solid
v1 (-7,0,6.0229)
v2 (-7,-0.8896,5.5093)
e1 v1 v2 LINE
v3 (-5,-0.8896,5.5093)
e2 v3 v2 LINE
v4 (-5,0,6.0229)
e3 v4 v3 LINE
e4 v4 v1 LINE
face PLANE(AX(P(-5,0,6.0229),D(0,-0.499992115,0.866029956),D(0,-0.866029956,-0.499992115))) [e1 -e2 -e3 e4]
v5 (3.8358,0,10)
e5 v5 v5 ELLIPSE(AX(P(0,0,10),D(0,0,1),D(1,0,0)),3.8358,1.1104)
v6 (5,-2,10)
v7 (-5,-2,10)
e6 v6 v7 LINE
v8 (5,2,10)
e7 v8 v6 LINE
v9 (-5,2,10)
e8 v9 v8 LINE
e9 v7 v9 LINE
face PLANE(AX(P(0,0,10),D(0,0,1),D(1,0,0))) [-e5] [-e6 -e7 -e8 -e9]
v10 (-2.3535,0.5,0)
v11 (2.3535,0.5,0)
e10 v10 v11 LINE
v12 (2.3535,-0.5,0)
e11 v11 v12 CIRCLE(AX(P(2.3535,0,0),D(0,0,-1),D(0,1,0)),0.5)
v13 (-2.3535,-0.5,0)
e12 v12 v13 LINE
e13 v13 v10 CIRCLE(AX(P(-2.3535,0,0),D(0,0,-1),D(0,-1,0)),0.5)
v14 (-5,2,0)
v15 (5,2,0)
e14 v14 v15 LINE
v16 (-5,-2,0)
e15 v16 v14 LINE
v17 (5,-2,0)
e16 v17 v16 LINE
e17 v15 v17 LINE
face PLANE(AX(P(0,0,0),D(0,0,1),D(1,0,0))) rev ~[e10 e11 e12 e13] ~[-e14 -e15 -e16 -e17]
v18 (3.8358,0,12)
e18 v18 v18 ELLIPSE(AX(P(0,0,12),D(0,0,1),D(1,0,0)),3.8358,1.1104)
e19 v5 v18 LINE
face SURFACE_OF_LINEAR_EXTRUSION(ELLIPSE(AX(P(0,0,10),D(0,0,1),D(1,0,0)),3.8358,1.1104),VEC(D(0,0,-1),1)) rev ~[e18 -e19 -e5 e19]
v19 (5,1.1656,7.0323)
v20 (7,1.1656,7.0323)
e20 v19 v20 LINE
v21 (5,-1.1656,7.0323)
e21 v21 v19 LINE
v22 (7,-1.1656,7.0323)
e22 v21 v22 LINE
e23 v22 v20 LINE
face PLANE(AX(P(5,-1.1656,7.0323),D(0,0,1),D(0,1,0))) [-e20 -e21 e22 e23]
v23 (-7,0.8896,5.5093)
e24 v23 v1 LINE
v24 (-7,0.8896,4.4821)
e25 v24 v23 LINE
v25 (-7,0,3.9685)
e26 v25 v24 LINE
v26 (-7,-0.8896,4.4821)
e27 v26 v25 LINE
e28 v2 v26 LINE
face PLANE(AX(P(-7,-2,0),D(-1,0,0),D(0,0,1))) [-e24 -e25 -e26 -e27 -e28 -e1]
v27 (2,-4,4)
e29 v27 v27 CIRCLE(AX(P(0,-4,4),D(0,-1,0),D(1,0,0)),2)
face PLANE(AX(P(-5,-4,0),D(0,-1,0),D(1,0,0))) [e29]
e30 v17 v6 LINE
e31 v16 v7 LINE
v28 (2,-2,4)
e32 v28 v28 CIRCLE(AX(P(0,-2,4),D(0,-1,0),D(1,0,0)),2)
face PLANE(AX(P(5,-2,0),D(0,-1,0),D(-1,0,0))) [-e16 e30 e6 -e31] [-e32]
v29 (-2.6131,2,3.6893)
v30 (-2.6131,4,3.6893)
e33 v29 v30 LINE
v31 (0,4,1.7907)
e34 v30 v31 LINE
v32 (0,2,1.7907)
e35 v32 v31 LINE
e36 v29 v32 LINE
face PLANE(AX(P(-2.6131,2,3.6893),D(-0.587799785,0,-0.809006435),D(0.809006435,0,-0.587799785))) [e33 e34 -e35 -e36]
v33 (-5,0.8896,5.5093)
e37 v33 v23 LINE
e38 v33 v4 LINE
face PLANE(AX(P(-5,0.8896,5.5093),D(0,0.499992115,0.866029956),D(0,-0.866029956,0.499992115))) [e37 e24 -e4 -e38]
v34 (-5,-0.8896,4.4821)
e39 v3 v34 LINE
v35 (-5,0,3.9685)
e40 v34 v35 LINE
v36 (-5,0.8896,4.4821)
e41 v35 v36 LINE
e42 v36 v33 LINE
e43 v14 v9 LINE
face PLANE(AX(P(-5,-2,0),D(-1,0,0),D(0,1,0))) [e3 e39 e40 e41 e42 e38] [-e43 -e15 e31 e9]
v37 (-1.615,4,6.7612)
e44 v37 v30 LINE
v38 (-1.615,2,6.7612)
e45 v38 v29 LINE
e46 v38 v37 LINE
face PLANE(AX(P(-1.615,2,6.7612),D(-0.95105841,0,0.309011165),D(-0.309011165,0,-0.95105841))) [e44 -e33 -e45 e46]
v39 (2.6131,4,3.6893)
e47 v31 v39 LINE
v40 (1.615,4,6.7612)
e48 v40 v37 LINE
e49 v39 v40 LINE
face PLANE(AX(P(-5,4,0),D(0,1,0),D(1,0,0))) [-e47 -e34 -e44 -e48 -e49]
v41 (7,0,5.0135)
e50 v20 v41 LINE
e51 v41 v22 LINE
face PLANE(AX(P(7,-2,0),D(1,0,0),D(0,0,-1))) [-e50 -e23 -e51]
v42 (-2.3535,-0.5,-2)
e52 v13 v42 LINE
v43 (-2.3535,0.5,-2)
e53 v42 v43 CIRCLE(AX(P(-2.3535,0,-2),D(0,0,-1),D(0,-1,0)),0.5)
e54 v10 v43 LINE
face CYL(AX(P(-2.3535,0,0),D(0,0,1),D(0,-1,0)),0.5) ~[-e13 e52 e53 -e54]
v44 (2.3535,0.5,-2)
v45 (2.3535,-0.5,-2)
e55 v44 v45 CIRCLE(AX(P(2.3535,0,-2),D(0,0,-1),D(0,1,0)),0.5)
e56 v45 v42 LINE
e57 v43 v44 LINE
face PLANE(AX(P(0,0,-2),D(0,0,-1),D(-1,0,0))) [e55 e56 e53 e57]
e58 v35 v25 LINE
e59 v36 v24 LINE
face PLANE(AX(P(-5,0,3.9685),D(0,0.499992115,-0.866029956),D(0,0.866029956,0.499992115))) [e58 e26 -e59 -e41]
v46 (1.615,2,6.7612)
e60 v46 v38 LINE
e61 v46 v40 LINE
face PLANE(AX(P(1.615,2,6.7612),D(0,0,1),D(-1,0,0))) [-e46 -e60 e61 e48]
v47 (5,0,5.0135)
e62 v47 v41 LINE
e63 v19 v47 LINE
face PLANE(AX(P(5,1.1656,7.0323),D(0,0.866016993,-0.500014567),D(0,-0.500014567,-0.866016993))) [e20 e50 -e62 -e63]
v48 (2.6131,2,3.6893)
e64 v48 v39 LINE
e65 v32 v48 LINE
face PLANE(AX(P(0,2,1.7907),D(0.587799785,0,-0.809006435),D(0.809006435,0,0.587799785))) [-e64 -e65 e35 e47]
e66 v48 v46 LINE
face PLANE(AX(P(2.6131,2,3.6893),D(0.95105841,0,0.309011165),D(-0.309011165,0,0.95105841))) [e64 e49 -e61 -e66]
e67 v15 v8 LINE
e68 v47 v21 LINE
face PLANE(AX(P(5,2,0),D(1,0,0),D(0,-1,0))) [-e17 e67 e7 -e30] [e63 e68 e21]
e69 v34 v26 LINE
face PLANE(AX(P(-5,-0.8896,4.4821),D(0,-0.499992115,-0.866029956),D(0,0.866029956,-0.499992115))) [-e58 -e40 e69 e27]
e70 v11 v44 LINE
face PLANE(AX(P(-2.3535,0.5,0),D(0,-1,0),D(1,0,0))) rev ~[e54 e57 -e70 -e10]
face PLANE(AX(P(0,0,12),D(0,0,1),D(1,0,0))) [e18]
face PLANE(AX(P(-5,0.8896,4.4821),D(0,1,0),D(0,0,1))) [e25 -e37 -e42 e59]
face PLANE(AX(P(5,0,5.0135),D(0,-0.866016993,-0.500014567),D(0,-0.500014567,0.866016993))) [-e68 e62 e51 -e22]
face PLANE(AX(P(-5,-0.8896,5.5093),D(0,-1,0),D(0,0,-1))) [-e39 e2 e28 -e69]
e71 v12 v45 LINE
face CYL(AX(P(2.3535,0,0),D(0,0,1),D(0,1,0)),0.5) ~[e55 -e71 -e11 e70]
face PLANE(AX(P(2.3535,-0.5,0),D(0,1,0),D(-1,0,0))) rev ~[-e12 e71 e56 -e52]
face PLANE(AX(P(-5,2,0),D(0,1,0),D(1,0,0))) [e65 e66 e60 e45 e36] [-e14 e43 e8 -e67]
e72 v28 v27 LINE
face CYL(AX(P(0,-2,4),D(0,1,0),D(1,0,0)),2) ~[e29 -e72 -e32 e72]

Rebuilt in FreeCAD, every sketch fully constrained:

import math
import FreeCAD as App
import Part
import Sketcher

V = App.Vector
Q = App.Units.Quantity

doc = App.newDocument("Part")
params = doc.addObject("Spreadsheet::Sheet", "Params")
for row, (alias, value) in enumerate([
    ("sketch1_width", "10 mm"),
    ("sketch1_height", "4 mm"),
    ("pad1_length", "10 mm"),
    ("sketch2_diameter", "4 mm"),
    ("pad2_length", "2 mm"),
    ("pad3_length", "2 mm"),
    ("sketch4_width", "3.23 mm"),
    ("pad4_length", "2 mm"),
    ("pad5_length", "2 mm"),
    ("sketch6_radius", "0.5 mm"),
    ("pad6_length", "2 mm"),
    ("pad7_length", "2 mm"),
], start=1):
    params.set(f"A{row}", alias)
    params.set(f"B{row}", "=" + value)
    params.setAlias(f"B{row}", alias)

body = doc.addObject("PartDesign::Body", "Body")

# Sketch on XY plane
sketch1 = body.newObject("Sketcher::SketchObject", "Sketch")
sketch1.AttachmentSupport = (doc.getObject("XY_Plane"), [""])
sketch1.MapMode = "FlatFace"
sketch1.addGeometry(Part.LineSegment(V(5, 2, 0), V(-5, 2, 0)), False)
sketch1.addGeometry(Part.LineSegment(V(-5, 2, 0), V(-5, -2, 0)), False)
sketch1.addGeometry(Part.LineSegment(V(-5, -2, 0), V(5, -2, 0)), False)
sketch1.addGeometry(Part.LineSegment(V(5, -2, 0), V(5, 2, 0)), False)
sketch1.addConstraint(Sketcher.Constraint("Coincident", 0, 2, 1, 1))
sketch1.addConstraint(Sketcher.Constraint("Coincident", 1, 2, 2, 1))
sketch1.addConstraint(Sketcher.Constraint("Coincident", 2, 2, 3, 1))
sketch1.addConstraint(Sketcher.Constraint("Coincident", 3, 2, 0, 1))
sketch1.addConstraint(Sketcher.Constraint("Horizontal", 0))
sketch1.addConstraint(Sketcher.Constraint("Vertical", 1))
sketch1.addConstraint(Sketcher.Constraint("Horizontal", 2))
sketch1.addConstraint(Sketcher.Constraint("Vertical", 3))
sketch1.addConstraint(Sketcher.Constraint("Symmetric", 0, 2, 2, 2, -1, 1))
sketch1.addConstraint(Sketcher.Constraint("DistanceX", 0, 2, 0, 1, Q("10 mm")))
sketch1.addConstraint(Sketcher.Constraint("DistanceY", 1, 2, 1, 1, Q("4 mm")))
sketch1.setExpression("Constraints[9]", "Params.sketch1_width")
sketch1.setExpression("Constraints[10]", "Params.sketch1_height")
pad1 = body.newObject("PartDesign::Pad", "Pad")
pad1.Profile = sketch1
pad1.setExpression("Length", "Params.pad1_length")

# Sketch on XZ plane
sketch2 = body.newObject("Sketcher::SketchObject", "Sketch001")
sketch2.AttachmentSupport = (doc.getObject("XZ_Plane"), [""])
sketch2.MapMode = "FlatFace"
sketch2.AttachmentOffset = App.Placement(V(0, 0, 2), App.Rotation())
sketch2.addGeometry(Part.Circle(V(0, 4, 0), V(0, 0, 1), 2), False)
sketch2.addConstraint(Sketcher.Constraint("PointOnObject", 0, 3, -2))
sketch2.addConstraint(Sketcher.Constraint("Diameter", 0, Q("4 mm")))
sketch2.addConstraint(Sketcher.Constraint("DistanceY", -1, 1, 0, 3, Q("4 mm")))
sketch2.setExpression("Constraints[1]", "Params.sketch2_diameter")
pad2 = body.newObject("PartDesign::Pad", "Pad001")
pad2.Profile = sketch2
pad2.setExpression("Length", "Params.pad2_length")

# Sketch on YZ plane
sketch3 = body.newObject("Sketcher::SketchObject", "Sketch002")
sketch3.AttachmentSupport = (doc.getObject("YZ_Plane"), [""])
sketch3.MapMode = "FlatFace"
sketch3.AttachmentOffset = App.Placement(V(0, 0, 5), App.Rotation())
sketch3.addGeometry(Part.LineSegment(V(-1.2, 7, 0), V(0, 5, 0)), False)
sketch3.addGeometry(Part.LineSegment(V(0, 5, 0), V(1.2, 7, 0)), False)
sketch3.addGeometry(Part.LineSegment(V(1.2, 7, 0), V(-1.2, 7, 0)), False)
sketch3.addConstraint(Sketcher.Constraint("Coincident", 0, 2, 1, 1))
sketch3.addConstraint(Sketcher.Constraint("Coincident", 1, 2, 2, 1))
sketch3.addConstraint(Sketcher.Constraint("Coincident", 2, 2, 0, 1))
sketch3.addConstraint(Sketcher.Constraint("Horizontal", 2))
sketch3.addConstraint(Sketcher.Constraint("PointOnObject", 0, 2, -2))
sketch3.addConstraint(Sketcher.Constraint("Equal", 0, 1))
sketch3.addConstraint(Sketcher.Constraint("Angle", 0, Q("-59.999 deg")))
sketch3.addConstraint(Sketcher.Constraint("DistanceX", 2, 2, 2, 1, Q("2.3312 mm")))
sketch3.addConstraint(Sketcher.Constraint("DistanceY", -1, 1, 0, 2, Q("5.0135 mm")))
pad3 = body.newObject("PartDesign::Pad", "Pad002")
pad3.Profile = sketch3
pad3.setExpression("Length", "Params.pad3_length")

# Sketch on XZ plane
sketch4 = body.newObject("Sketcher::SketchObject", "Sketch003")
sketch4.AttachmentSupport = (doc.getObject("XZ_Plane"), [""])
sketch4.MapMode = "FlatFace"
sketch4.AttachmentOffset = App.Placement(V(0, 0, -2), App.Rotation())
sketch4.addGeometry(Part.LineSegment(V(2.6, 3.7, 0), V(0, 1.8, 0)), False)
sketch4.addGeometry(Part.LineSegment(V(0, 1.8, 0), V(-2.6, 3.7, 0)), False)
sketch4.addGeometry(Part.LineSegment(V(-2.6, 3.7, 0), V(-1.6, 6.8, 0)), False)
sketch4.addGeometry(Part.LineSegment(V(-1.6, 6.8, 0), V(1.6, 6.8, 0)), False)
sketch4.addGeometry(Part.LineSegment(V(1.6, 6.8, 0), V(2.6, 3.7, 0)), False)
sketch4.addConstraint(Sketcher.Constraint("Coincident", 0, 2, 1, 1))
sketch4.addConstraint(Sketcher.Constraint("Coincident", 1, 2, 2, 1))
sketch4.addConstraint(Sketcher.Constraint("Coincident", 2, 2, 3, 1))
sketch4.addConstraint(Sketcher.Constraint("Coincident", 3, 2, 4, 1))
sketch4.addConstraint(Sketcher.Constraint("Coincident", 4, 2, 0, 1))
sketch4.addConstraint(Sketcher.Constraint("Horizontal", 3))
sketch4.addConstraint(Sketcher.Constraint("Symmetric", 1, 2, 4, 2, -2))
sketch4.addConstraint(Sketcher.Constraint("PointOnObject", 0, 2, -2))
sketch4.addConstraint(Sketcher.Constraint("Equal", 1, 2))
sketch4.addConstraint(Sketcher.Constraint("Equal", 2, 4))
sketch4.addConstraint(Sketcher.Constraint("Angle", 0, Q("-143.999 deg")))
sketch4.addConstraint(Sketcher.Constraint("Angle", 2, Q("72.0004 deg")))
sketch4.addConstraint(Sketcher.Constraint("DistanceX", 3, 1, 3, 2, Q("3.23 mm")))
sketch4.addConstraint(Sketcher.Constraint("DistanceY", -1, 1, 0, 2, Q("1.7907 mm")))
sketch4.setExpression("Constraints[12]", "Params.sketch4_width")
pad4 = body.newObject("PartDesign::Pad", "Pad003")
pad4.Profile = sketch4
pad4.setExpression("Length", "Params.pad4_length")
pad4.Reversed = True

# Sketch on YZ plane
sketch5 = body.newObject("Sketcher::SketchObject", "Sketch004")
sketch5.AttachmentSupport = (doc.getObject("YZ_Plane"), [""])
sketch5.MapMode = "FlatFace"
sketch5.AttachmentOffset = App.Placement(V(0, 0, -5), App.Rotation())
sketch5.addGeometry(Part.LineSegment(V(-0.9, 5.5, 0), V(0, 6, 0)), False)
sketch5.addGeometry(Part.LineSegment(V(0, 6, 0), V(0.9, 5.5, 0)), False)
sketch5.addGeometry(Part.LineSegment(V(0.9, 5.5, 0), V(0.9, 4.5, 0)), False)
sketch5.addGeometry(Part.LineSegment(V(0.9, 4.5, 0), V(0, 4, 0)), False)
sketch5.addGeometry(Part.LineSegment(V(0, 4, 0), V(-0.9, 4.5, 0)), False)
sketch5.addGeometry(Part.LineSegment(V(-0.9, 4.5, 0), V(-0.9, 5.5, 0)), False)
sketch5.addConstraint(Sketcher.Constraint("Coincident", 0, 2, 1, 1))
sketch5.addConstraint(Sketcher.Constraint("Coincident", 1, 2, 2, 1))
sketch5.addConstraint(Sketcher.Constraint("Coincident", 2, 2, 3, 1))
sketch5.addConstraint(Sketcher.Constraint("Coincident", 3, 2, 4, 1))
sketch5.addConstraint(Sketcher.Constraint("Coincident", 4, 2, 5, 1))
sketch5.addConstraint(Sketcher.Constraint("Coincident", 5, 2, 0, 1))
sketch5.addConstraint(Sketcher.Constraint("Vertical", 2))
sketch5.addConstraint(Sketcher.Constraint("Vertical", 5))
sketch5.addConstraint(Sketcher.Constraint("Symmetric", 2, 2, 4, 2, -2))
sketch5.addConstraint(Sketcher.Constraint("PointOnObject", 0, 2, -2))
sketch5.addConstraint(Sketcher.Constraint("PointOnObject", 3, 2, -2))
sketch5.addConstraint(Sketcher.Constraint("Parallel", 0, 3))
sketch5.addConstraint(Sketcher.Constraint("Parallel", 1, 4))
sketch5.addConstraint(Sketcher.Constraint("Angle", 0, Q("29.9995 deg")))
sketch5.addConstraint(Sketcher.Constraint("DistanceY", 2, 2, 2, 1, Q("1.0272 mm")))
sketch5.addConstraint(Sketcher.Constraint("DistanceY", -1, 1, 0, 2, Q("6.023 mm")))
sketch5.addConstraint(Sketcher.Constraint("DistanceY", -1, 1, 2, 2, Q("4.482 mm")))
pad5 = body.newObject("PartDesign::Pad", "Pad004")
pad5.Profile = sketch5
pad5.setExpression("Length", "Params.pad5_length")
pad5.Reversed = True

# Sketch on XY plane
sketch6 = body.newObject("Sketcher::SketchObject", "Sketch005")
sketch6.AttachmentSupport = (doc.getObject("XY_Plane"), [""])
sketch6.MapMode = "FlatFace"
sketch6.addGeometry(Part.ArcOfCircle(Part.Circle(V(-2.4, 0, 0), V(0, 0, 1), 0.5), math.radians(90), math.radians(270)), False)
sketch6.addGeometry(Part.LineSegment(V(-2.4, 0.5, 0), V(2.4, 0.5, 0)), False)
sketch6.addGeometry(Part.ArcOfCircle(Part.Circle(V(2.4, 0, 0), V(0, 0, 1), 0.5), math.radians(-90), math.radians(90)), False)
sketch6.addGeometry(Part.LineSegment(V(2.4, -0.5, 0), V(-2.4, -0.5, 0)), False)
sketch6.addConstraint(Sketcher.Constraint("Tangent", 0, 1, 1, 1))
sketch6.addConstraint(Sketcher.Constraint("Tangent", 1, 2, 2, 2))
sketch6.addConstraint(Sketcher.Constraint("Tangent", 2, 1, 3, 1))
sketch6.addConstraint(Sketcher.Constraint("Tangent", 3, 2, 0, 2))
sketch6.addConstraint(Sketcher.Constraint("Horizontal", 1))
sketch6.addConstraint(Sketcher.Constraint("Horizontal", 3))
sketch6.addConstraint(Sketcher.Constraint("Symmetric", 0, 3, 2, 3, -1, 1))
sketch6.addConstraint(Sketcher.Constraint("Radius", 0, Q("0.5 mm")))
sketch6.addConstraint(Sketcher.Constraint("DistanceX", 1, 1, 1, 2, Q("4.707 mm")))
sketch6.setExpression("Constraints[7]", "Params.sketch6_radius")
pad6 = body.newObject("PartDesign::Pad", "Pad005")
pad6.Profile = sketch6
pad6.setExpression("Length", "Params.pad6_length")
pad6.Reversed = True

# Sketch on XY plane
sketch7 = body.newObject("Sketcher::SketchObject", "Sketch006")
sketch7.AttachmentSupport = (doc.getObject("XY_Plane"), [""])
sketch7.MapMode = "FlatFace"
sketch7.AttachmentOffset = App.Placement(V(0, 0, 10), App.Rotation())
sketch7.addGeometry(Part.Ellipse(V(3.8358, 0, 0), V(0, 1.1104, 0), V(0, 0, 0)), False)
sketch7.addConstraint(Sketcher.Constraint("Block", 0))
pad7 = body.newObject("PartDesign::Pad", "Pad006")
pad7.Profile = sketch7
pad7.setExpression("Length", "Params.pad7_length")

doc.recompute()
